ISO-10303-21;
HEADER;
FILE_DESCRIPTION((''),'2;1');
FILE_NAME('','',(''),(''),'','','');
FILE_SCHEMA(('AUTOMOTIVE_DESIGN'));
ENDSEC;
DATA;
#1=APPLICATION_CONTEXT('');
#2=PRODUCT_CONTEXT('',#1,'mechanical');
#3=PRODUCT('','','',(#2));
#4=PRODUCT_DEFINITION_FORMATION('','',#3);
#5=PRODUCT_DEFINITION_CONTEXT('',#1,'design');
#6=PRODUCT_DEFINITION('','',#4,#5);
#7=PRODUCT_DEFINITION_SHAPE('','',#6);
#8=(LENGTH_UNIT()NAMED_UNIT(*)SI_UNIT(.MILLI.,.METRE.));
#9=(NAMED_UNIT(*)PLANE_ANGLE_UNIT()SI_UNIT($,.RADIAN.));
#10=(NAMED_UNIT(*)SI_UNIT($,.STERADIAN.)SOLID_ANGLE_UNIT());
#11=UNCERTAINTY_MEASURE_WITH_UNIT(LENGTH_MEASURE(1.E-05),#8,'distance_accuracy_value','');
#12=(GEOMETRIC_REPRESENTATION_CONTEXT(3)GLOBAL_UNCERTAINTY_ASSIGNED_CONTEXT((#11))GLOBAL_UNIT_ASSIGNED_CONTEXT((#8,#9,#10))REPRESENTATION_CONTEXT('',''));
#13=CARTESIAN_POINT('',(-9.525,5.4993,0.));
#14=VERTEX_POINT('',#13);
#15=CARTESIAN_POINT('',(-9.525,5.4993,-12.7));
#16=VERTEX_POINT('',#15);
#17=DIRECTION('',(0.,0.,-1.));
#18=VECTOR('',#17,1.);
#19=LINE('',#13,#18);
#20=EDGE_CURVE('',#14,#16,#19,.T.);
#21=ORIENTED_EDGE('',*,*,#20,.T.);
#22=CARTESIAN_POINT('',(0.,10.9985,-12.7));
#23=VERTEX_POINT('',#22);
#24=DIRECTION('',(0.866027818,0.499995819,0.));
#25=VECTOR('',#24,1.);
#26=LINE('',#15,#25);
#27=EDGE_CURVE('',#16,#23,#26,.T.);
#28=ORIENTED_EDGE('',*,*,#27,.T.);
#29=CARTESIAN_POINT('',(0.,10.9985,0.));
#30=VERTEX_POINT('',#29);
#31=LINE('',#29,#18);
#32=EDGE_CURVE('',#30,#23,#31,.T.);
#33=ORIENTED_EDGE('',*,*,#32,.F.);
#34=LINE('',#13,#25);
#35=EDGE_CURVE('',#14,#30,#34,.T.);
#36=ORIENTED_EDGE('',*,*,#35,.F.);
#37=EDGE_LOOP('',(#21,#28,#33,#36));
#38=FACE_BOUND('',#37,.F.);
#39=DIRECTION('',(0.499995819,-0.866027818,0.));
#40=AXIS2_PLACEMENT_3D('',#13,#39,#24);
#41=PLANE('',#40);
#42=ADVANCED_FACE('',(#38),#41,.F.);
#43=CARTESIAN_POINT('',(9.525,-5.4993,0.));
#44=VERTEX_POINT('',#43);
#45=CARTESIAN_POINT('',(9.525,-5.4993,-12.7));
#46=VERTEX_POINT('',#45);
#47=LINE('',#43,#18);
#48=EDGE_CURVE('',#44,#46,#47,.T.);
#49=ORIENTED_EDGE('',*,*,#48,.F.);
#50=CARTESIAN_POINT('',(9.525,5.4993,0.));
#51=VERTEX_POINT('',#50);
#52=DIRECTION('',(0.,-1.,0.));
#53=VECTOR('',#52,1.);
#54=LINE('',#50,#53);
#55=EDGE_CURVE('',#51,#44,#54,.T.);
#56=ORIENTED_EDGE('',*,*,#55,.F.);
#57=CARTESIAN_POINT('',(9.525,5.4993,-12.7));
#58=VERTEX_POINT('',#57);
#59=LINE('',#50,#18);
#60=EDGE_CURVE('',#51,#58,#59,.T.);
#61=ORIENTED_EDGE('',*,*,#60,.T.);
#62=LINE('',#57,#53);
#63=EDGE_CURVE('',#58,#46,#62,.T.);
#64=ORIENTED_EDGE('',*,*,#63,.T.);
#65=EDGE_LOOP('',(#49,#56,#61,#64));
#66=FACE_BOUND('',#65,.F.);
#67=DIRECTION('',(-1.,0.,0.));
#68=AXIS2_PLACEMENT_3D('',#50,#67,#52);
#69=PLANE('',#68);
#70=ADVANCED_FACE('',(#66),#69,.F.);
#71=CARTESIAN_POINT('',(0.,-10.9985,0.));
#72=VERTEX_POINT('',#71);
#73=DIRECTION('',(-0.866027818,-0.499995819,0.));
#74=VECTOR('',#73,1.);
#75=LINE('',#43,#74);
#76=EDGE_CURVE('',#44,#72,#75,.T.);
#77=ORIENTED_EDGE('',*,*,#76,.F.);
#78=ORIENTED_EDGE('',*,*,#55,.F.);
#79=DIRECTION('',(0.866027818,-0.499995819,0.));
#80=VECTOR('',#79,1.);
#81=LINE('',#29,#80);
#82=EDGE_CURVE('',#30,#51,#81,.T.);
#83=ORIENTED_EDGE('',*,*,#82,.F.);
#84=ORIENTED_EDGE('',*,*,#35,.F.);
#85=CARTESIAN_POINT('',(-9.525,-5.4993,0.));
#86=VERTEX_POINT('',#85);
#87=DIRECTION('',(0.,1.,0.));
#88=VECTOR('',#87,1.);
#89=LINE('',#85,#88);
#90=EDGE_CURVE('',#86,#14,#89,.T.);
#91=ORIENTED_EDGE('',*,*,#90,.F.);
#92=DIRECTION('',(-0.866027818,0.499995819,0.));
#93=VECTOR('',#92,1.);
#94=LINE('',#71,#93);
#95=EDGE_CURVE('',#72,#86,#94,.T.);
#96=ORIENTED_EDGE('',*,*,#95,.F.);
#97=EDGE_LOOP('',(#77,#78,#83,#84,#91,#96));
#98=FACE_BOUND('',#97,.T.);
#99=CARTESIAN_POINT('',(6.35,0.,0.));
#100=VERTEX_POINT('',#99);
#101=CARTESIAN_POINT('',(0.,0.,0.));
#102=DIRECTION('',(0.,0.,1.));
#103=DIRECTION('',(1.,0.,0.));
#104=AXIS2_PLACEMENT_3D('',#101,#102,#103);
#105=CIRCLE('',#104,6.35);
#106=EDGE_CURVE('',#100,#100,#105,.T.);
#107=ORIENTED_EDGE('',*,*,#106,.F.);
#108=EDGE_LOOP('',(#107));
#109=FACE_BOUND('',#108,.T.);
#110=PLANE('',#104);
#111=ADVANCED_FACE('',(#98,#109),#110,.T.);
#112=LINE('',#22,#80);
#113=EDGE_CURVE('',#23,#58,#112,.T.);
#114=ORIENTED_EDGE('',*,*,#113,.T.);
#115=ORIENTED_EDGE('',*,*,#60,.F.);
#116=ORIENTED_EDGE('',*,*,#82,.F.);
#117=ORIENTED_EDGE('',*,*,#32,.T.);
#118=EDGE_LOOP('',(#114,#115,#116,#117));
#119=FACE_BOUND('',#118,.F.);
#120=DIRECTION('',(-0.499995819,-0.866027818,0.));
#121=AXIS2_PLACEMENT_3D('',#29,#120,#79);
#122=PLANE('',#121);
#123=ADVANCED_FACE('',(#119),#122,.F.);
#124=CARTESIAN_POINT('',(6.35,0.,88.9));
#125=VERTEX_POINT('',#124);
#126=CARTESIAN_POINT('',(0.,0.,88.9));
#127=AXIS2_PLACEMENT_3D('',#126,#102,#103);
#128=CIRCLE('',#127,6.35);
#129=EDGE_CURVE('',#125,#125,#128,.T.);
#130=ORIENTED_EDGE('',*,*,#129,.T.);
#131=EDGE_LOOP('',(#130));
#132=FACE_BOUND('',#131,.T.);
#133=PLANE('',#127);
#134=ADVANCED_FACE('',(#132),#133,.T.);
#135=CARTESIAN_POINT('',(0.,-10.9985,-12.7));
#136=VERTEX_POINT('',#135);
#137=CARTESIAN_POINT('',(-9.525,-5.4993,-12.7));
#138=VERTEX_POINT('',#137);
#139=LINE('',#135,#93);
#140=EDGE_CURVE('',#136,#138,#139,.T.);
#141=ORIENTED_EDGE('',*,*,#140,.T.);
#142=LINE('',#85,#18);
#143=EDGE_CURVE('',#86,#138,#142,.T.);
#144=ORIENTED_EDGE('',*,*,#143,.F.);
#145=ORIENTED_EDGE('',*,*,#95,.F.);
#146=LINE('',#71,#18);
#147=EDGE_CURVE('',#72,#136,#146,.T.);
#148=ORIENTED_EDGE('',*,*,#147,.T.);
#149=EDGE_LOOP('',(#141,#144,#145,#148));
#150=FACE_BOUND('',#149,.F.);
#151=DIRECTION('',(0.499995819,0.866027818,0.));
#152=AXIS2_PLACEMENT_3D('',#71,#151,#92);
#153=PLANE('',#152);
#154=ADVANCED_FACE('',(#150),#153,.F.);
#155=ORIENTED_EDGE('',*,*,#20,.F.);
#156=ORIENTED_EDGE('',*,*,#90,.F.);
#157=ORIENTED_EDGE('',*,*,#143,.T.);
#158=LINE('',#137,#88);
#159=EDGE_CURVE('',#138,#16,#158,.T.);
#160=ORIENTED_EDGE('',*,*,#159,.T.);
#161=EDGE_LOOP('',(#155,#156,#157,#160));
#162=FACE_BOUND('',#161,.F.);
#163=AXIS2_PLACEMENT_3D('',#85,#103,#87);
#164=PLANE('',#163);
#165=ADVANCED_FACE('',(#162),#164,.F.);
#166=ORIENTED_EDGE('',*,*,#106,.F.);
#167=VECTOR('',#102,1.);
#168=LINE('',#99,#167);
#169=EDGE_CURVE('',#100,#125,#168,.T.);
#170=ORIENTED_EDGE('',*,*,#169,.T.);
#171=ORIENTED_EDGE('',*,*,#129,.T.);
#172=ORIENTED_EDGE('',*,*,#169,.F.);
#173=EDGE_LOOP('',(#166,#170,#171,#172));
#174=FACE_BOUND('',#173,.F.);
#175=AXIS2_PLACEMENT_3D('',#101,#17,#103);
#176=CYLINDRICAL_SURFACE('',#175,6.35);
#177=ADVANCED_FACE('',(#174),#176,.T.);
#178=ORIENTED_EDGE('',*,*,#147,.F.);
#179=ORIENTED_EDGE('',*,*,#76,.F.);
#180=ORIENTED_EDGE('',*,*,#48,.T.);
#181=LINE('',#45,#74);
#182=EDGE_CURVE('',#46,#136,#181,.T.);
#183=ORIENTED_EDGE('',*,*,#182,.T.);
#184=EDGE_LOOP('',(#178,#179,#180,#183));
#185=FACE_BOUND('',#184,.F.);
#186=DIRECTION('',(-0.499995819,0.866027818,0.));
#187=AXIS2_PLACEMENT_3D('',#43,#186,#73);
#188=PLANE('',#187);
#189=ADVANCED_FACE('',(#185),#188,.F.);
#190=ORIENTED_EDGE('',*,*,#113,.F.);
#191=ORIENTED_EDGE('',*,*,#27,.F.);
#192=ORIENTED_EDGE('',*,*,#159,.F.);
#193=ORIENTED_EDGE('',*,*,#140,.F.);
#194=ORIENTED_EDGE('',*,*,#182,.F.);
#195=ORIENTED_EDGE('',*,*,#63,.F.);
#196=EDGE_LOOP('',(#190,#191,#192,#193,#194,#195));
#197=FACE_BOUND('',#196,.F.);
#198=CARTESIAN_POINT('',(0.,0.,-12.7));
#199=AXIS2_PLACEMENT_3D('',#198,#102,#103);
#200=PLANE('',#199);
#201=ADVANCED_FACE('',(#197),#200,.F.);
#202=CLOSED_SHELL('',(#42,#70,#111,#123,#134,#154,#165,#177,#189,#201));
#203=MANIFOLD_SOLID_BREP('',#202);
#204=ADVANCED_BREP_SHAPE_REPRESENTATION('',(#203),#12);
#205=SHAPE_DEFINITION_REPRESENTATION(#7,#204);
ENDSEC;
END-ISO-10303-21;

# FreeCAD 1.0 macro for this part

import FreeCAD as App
import Part
import Sketcher

V = App.Vector
Q = App.Units.Quantity

doc = App.newDocument("Part")
body = doc.addObject("PartDesign::Body", "Body")

# Sketch on XY plane
sketch1 = body.newObject("Sketcher::SketchObject", "Sketch")
sketch1.AttachmentSupport = (doc.getObject("XY_Plane"), [""])
sketch1.MapMode = "FlatFace"
sketch1.addGeometry(Part.LineSegment(V(10, 5, 0), V(0, 11, 0)), False)
sketch1.addGeometry(Part.LineSegment(V(0, 11, 0), V(-10, 5, 0)), False)
sketch1.addGeometry(Part.LineSegment(V(-10, 5, 0), V(-10, -5, 0)), False)
sketch1.addGeometry(Part.LineSegment(V(-10, -5, 0), V(0, -11, 0)), False)
sketch1.addGeometry(Part.LineSegment(V(0, -11, 0), V(10, -5, 0)), False)
sketch1.addGeometry(Part.LineSegment(V(10, -5, 0), V(10, 5, 0)), False)
sketch1.addConstraint(Sketcher.Constraint("Coincident", 0, 2, 1, 1))
sketch1.addConstraint(Sketcher.Constraint("Coincident", 1, 2, 2, 1))
sketch1.addConstraint(Sketcher.Constraint("Coincident", 2, 2, 3, 1))
sketch1.addConstraint(Sketcher.Constraint("Coincident", 3, 2, 4, 1))
sketch1.addConstraint(Sketcher.Constraint("Coincident", 4, 2, 5, 1))
sketch1.addConstraint(Sketcher.Constraint("Coincident", 5, 2, 0, 1))
sketch1.addConstraint(Sketcher.Constraint("Vertical", 2))
sketch1.addConstraint(Sketcher.Constraint("Vertical", 5))
sketch1.addConstraint(Sketcher.Constraint("Symmetric", 0, 2, 3, 2, -1, 1))
sketch1.addConstraint(Sketcher.Constraint("Symmetric", 1, 2, 4, 2, -1, 1))
sketch1.addConstraint(Sketcher.Constraint("PointOnObject", 0, 2, -2))
sketch1.addConstraint(Sketcher.Constraint("Parallel", 0, 3))
sketch1.addConstraint(Sketcher.Constraint("Horizontal", 2, 2, 4, 2))
sketch1.addConstraint(Sketcher.Constraint("DistanceX", 2, 2, 4, 2, Q("0.75 in")))
sketch1.addConstraint(Sketcher.Constraint("Angle", 0, Q("150.0003 deg")))
sketch1.addConstraint(Sketcher.Constraint("DistanceY", -1, 1, 0, 2, Q("0.433 in")))
pad1 = body.newObject("PartDesign::Pad", "Pad")
pad1.Profile = sketch1
pad1.Length = Q("0.5 in")
pad1.Reversed = True

# Sketch on XY plane
sketch2 = body.newObject("Sketcher::SketchObject", "Sketch001")
sketch2.AttachmentSupport = (doc.getObject("XY_Plane"), [""])
sketch2.MapMode = "FlatFace"
sketch2.addGeometry(Part.Circle(V(0, 0, 0), V(0, 0, 1), 6), False)
sketch2.addConstraint(Sketcher.Constraint("Coincident", 0, 3, -1, 1))
sketch2.addConstraint(Sketcher.Constraint("Diameter", 0, Q("0.5 in")))
pad2 = body.newObject("PartDesign::Pad", "Pad001")
pad2.Profile = sketch2
pad2.Length = Q("3.5 in")

doc.recompute()
